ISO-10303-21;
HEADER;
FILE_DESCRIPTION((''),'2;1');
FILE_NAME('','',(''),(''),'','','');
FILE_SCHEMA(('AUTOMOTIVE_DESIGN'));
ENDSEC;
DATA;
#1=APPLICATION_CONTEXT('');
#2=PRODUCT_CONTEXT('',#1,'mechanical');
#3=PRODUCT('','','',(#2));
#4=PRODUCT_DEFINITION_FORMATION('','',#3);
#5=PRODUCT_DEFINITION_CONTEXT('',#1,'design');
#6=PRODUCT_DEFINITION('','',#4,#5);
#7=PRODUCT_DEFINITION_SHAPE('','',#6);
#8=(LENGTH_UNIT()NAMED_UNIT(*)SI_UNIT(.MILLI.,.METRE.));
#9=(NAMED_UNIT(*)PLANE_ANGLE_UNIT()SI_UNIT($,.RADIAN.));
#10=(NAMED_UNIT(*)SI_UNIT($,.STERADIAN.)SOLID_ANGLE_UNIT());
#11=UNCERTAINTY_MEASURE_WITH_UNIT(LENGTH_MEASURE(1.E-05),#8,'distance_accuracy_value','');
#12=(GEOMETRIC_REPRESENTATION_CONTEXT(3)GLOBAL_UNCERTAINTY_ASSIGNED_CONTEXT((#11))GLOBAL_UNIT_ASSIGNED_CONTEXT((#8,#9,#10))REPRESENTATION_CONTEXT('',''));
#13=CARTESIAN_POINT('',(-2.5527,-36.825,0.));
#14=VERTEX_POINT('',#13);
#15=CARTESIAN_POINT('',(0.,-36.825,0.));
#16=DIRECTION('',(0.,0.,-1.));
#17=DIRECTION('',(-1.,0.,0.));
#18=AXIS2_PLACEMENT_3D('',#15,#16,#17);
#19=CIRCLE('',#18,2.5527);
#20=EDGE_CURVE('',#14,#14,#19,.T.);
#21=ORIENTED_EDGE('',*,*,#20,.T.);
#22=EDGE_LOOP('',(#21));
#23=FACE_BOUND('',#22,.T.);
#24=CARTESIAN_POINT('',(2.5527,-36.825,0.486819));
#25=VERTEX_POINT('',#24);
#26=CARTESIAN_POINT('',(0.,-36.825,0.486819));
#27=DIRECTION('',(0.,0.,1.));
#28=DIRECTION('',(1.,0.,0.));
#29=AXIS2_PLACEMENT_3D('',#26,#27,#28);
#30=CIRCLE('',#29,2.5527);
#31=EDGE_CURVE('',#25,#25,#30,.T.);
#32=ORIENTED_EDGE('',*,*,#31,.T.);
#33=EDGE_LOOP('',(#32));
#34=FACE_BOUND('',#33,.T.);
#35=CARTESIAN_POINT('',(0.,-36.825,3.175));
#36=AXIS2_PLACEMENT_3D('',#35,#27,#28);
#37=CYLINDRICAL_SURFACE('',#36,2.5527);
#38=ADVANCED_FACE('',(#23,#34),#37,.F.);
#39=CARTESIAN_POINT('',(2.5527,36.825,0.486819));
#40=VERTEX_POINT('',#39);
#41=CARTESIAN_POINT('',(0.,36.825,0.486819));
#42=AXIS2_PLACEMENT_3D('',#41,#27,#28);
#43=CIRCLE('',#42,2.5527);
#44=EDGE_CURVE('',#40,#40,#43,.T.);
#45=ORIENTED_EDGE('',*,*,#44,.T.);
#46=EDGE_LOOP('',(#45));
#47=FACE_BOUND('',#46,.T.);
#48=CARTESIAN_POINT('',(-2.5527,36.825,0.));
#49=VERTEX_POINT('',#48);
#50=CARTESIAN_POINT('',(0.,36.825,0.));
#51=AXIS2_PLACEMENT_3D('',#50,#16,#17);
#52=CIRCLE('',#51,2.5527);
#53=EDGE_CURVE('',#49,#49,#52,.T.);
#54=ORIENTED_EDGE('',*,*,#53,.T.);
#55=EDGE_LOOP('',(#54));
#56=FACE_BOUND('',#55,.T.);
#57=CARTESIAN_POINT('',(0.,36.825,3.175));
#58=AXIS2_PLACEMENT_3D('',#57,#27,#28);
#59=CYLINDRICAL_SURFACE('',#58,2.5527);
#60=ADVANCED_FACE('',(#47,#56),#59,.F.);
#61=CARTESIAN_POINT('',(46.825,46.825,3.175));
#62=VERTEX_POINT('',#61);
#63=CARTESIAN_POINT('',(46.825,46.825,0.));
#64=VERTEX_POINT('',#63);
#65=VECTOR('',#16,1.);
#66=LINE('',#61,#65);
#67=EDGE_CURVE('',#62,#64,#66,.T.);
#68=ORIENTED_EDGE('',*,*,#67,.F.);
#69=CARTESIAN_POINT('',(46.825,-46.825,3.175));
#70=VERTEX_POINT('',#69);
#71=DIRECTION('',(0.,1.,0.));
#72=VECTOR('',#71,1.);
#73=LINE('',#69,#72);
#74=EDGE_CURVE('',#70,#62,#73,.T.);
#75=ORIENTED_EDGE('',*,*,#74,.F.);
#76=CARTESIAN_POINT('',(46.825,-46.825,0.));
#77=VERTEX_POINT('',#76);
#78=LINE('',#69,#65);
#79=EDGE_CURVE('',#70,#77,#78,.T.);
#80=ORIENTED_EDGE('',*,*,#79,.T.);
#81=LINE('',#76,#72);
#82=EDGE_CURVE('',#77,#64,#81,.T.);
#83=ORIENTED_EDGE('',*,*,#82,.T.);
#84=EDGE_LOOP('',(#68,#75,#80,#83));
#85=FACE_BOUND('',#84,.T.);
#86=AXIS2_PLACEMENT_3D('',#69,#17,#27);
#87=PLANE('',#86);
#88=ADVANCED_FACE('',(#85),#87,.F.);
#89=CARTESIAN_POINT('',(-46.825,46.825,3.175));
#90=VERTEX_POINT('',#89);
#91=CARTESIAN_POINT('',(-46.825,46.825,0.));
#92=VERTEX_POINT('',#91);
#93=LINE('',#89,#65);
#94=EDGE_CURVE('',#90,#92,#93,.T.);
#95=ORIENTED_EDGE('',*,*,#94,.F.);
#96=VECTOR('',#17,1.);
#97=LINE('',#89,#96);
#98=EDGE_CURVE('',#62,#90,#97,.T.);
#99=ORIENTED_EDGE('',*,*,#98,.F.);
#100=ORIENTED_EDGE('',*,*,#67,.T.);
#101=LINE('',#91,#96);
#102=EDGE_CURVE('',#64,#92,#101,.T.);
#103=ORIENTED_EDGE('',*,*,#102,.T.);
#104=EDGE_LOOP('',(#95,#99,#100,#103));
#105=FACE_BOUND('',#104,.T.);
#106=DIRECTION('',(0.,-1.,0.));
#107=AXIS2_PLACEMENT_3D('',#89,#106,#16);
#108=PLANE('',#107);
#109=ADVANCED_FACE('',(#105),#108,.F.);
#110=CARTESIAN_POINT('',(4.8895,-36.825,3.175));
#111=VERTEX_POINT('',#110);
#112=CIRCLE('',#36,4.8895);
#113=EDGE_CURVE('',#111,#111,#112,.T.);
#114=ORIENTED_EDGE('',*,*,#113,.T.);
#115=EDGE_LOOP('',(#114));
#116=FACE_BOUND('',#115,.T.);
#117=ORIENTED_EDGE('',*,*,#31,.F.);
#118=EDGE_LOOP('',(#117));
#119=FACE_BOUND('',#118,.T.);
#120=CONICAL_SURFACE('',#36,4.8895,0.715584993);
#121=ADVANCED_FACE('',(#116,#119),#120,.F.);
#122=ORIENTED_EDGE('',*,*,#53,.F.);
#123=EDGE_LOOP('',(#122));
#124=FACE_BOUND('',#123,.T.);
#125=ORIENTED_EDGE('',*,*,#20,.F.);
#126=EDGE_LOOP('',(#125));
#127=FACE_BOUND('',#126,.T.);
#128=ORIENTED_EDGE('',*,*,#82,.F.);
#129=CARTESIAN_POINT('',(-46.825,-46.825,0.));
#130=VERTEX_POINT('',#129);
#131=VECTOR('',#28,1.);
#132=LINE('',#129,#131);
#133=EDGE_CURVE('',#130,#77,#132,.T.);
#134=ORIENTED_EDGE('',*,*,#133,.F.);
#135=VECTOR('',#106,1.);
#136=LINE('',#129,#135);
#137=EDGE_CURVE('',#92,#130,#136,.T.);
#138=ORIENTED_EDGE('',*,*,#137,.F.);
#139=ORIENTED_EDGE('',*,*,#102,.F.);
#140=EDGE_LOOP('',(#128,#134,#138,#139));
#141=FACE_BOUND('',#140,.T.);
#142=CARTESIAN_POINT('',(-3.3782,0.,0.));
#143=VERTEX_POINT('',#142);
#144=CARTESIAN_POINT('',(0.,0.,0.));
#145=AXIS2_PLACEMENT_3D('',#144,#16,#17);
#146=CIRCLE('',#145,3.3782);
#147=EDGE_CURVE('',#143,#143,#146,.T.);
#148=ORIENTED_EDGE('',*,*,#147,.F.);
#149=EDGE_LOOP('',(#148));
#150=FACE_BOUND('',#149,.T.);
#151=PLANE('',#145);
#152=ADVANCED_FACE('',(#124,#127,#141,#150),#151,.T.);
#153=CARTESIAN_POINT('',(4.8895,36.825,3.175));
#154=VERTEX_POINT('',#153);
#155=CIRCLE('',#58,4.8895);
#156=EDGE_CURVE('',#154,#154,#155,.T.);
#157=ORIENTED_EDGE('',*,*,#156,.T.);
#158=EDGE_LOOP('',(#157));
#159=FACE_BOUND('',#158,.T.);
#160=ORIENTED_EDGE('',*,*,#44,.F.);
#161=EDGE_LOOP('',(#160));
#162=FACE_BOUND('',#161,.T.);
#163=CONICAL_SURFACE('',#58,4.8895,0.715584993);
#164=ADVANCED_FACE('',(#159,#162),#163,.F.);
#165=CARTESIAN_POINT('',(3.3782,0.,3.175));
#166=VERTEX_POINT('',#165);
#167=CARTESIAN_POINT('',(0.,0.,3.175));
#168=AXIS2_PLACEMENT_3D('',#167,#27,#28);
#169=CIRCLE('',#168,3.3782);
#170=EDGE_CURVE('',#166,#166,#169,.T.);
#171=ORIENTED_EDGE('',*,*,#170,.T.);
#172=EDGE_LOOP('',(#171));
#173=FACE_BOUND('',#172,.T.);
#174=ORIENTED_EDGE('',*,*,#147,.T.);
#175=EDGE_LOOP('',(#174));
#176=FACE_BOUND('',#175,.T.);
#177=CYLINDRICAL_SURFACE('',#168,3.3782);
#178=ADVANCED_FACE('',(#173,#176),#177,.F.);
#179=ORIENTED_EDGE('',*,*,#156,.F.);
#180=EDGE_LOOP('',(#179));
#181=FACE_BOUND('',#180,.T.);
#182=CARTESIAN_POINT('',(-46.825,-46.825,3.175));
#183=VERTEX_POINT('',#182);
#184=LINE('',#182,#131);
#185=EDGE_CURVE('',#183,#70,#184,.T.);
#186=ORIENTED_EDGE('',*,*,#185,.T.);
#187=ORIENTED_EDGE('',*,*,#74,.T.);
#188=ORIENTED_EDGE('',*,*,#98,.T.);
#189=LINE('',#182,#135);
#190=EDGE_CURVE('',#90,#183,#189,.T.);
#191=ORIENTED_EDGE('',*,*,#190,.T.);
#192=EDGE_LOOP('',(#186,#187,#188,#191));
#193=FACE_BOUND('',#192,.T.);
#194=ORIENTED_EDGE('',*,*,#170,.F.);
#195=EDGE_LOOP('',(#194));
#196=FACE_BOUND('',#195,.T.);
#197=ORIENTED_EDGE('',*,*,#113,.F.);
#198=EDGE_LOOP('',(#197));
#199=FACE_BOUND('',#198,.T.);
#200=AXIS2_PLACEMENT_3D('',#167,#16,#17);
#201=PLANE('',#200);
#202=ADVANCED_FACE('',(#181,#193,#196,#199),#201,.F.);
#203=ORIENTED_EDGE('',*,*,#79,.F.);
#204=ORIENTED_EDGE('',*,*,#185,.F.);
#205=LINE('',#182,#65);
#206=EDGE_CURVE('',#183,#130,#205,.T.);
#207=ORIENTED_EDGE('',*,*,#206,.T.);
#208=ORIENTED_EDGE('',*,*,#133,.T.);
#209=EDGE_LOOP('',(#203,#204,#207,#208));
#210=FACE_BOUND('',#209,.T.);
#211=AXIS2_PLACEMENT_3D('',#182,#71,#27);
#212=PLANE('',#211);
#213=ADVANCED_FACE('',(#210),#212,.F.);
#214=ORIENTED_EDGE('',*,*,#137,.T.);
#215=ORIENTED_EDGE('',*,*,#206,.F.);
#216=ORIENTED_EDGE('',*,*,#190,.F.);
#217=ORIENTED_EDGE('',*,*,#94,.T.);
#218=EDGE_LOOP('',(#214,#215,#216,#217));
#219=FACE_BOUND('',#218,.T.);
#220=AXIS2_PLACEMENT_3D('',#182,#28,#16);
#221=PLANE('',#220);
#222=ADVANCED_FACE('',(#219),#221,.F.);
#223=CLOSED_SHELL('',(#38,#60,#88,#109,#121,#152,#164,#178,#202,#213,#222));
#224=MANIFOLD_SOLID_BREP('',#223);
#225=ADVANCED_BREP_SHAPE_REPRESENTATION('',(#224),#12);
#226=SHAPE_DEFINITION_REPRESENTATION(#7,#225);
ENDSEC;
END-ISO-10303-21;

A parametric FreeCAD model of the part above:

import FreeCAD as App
import Part
import Sketcher
from FreeCAD import Vector
Q = App.Units.Quantity

doc = App.newDocument("Part")
body = doc.addObject("PartDesign::Body", "Body")

# Sketch on XY plane
sketch1 = doc.addObject("Sketcher::SketchObject", "Sketch")
body.addObject(sketch1)
sketch1.AttachmentSupport = (doc.XY_Plane, [""])
sketch1.MapMode = "FlatFace"
sketch1.addGeometry([
    Part.LineSegment(Vector(-47, 47, 0), Vector(-47, -47, 0)),
    Part.LineSegment(Vector(-47, -47, 0), Vector(47, -47, 0)),
    Part.LineSegment(Vector(47, -47, 0), Vector(47, 47, 0)),
    Part.LineSegment(Vector(47, 47, 0), Vector(-47, 47, 0)),
], False)
sketch1.addConstraint([
    Sketcher.Constraint("Coincident", 0, 2, 1, 1),
    Sketcher.Constraint("Coincident", 1, 2, 2, 1),
    Sketcher.Constraint("Coincident", 2, 2, 3, 1),
    Sketcher.Constraint("Coincident", 3, 2, 0, 1),
    Sketcher.Constraint("Vertical", 0),
    Sketcher.Constraint("Horizontal", 1),
    Sketcher.Constraint("Vertical", 2),
    Sketcher.Constraint("Horizontal", 3),
    Sketcher.Constraint("Symmetric", 0, 2, 2, 2, -1, 1),
    Sketcher.Constraint("Equal", 3, 0),
    Sketcher.Constraint("DistanceX", 1, 1, 1, 2, 93.65),
])
pad1 = doc.addObject("PartDesign::Pad", "Pad")
body.addObject(pad1)
pad1.Profile = sketch1
pad1.Length = Q("0.125 in")

# Sketch on XY plane
sketch2 = doc.addObject("Sketcher::SketchObject", "Sketch001")
body.addObject(sketch2)
sketch2.AttachmentSupport = (doc.XY_Plane, [""])
sketch2.MapMode = "FlatFace"
sketch2.AttachmentOffset = App.Placement(Vector(0, 0, 0.125 * 25.4), App.Rotation())
sketch2.addGeometry(Part.Circle(Vector(0, 0, 0), Vector(0, 0, 1), 3.4), False)
sketch2.addConstraint([
    Sketcher.Constraint("Coincident", 0, 3, -1, 1),
    Sketcher.Constraint("Diameter", 0, Q("0.266 in")),
])
doc.recompute()
hole = doc.addObject("PartDesign::Hole", "Hole")
body.addObject(hole)
hole.Profile = sketch2
hole.ThreadType = "None"
hole.Diameter = Q("0.266 in")
hole.DepthType = "Dimension"
hole.Depth = Q("0.19 in")
hole.DrillPoint = "Angled"
hole.DrillPointAngle = 118

# Sketch on XY plane
sketch3 = doc.addObject("Sketcher::SketchObject", "Sketch002")
body.addObject(sketch3)
sketch3.AttachmentSupport = (doc.XY_Plane, [""])
sketch3.MapMode = "FlatFace"
sketch3.AttachmentOffset = App.Placement(Vector(0, 0, 0.125 * 25.4), App.Rotation())
sketch3.addGeometry([
    Part.Circle(Vector(0, 36.8, 0), Vector(0, 0, 1), 2.6),
    Part.Circle(Vector(0, -36.8, 0), Vector(0, 0, 1), 2.6),
], False)
sketch3.addConstraint([
    Sketcher.Constraint("Equal", 0, 1),
    Sketcher.Constraint("Symmetric", 0, 3, 1, 3, -1, 1),
    Sketcher.Constraint("PointOnObject", 0, 3, -2),
    Sketcher.Constraint("Diameter", 0, Q("0.201 in")),
    Sketcher.Constraint("DistanceY", -1, 1, 0, 3, 36.825),
])
doc.recompute()
hole2 = doc.addObject("PartDesign::Hole", "Hole001")
body.addObject(hole2)
hole2.Profile = sketch3
hole2.ThreadType = "None"
hole2.Diameter = Q("0.201 in")
hole2.DepthType = "Dimension"
hole2.Depth = Q("0.19 in")
hole2.DrillPoint = "Angled"
hole2.DrillPointAngle = 118
hole2.HoleCutType = "Countersink"
hole2.HoleCutDiameter = Q("0.385 in")
hole2.HoleCutCountersinkAngle = 82

doc.recompute()
